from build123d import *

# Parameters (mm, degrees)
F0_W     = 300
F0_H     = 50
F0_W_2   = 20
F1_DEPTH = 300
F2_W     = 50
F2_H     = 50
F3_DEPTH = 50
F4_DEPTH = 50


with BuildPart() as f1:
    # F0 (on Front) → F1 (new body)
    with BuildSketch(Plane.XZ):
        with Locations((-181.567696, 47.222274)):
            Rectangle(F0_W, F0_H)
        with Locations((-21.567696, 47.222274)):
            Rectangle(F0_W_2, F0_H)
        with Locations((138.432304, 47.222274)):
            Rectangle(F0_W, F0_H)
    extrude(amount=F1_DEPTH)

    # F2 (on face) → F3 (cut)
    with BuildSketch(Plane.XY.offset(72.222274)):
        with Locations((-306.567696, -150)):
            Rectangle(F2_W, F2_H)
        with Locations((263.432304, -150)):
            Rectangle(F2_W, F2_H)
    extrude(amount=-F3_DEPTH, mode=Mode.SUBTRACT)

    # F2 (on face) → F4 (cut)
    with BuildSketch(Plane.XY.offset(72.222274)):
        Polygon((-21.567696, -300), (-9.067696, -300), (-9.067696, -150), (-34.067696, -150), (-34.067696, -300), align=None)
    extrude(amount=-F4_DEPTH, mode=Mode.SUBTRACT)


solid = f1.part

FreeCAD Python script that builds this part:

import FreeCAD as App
import Part
import Sketcher

V = App.Vector
Q = App.Units.Quantity


def add_polygon(sketch, points):
    """Adds a closed chain of lines whose ends are joined by coincident constraints."""
    first, n = sketch.GeometryCount, len(points)
    for a, b in zip(points, points[1:] + points[:1]):
        sketch.addGeometry(Part.LineSegment(App.Vector(*a, 0), App.Vector(*b, 0)), False)
    for i in range(n):
        sketch.addConstraint(Sketcher.Constraint("Coincident", first + i, 2, first + (i + 1) % n, 1))

doc = App.newDocument("Part")
body = doc.addObject("PartDesign::Body", "Body")

sketch1 = body.newObject("Sketcher::SketchObject", "Sketch")
sketch1.AttachmentSupport = (doc.getObject("XZ_Plane"), [""])
sketch1.MapMode = "FlatFace"
add_polygon(sketch1, [(-332, 72), (-332, 22), (288, 22), (288, 72)])
sketch1.addConstraint([
    Sketcher.Constraint("Vertical", 0),
    Sketcher.Constraint("Horizontal", 1),
    Sketcher.Constraint("Vertical", 2),
    Sketcher.Constraint("Horizontal", 3),
    Sketcher.Constraint("DistanceX", 1, 1, 1, 2, Q("620 mm")),
    Sketcher.Constraint("DistanceY", 0, 2, 0, 1, Q("50 mm")),
    Sketcher.Constraint("DistanceX", 0, 2, -1, 1, Q("331.567696 mm")),
    Sketcher.Constraint("DistanceY", -1, 1, 0, 2, Q("22.222274 mm")),
])
pad1 = body.newObject("PartDesign::Pad", "Pad")
pad1.Profile = sketch1
pad1.Length = 300

sketch2 = body.newObject("Sketcher::SketchObject", "Sketch001")
sketch2.AttachmentSupport = (doc.getObject("XY_Plane"), [""])
sketch2.MapMode = "FlatFace"
sketch2.AttachmentOffset = App.Placement(V(0, 0, 72.222274), App.Rotation())
add_polygon(sketch2, [(-332, -125), (-332, -175), (-282, -175), (-282, -125)])
add_polygon(sketch2, [(238, -125), (238, -175), (288, -175), (288, -125)])
sketch2.addConstraint([
    Sketcher.Constraint("Vertical", 0),
    Sketcher.Constraint("Horizontal", 1),
    Sketcher.Constraint("Vertical", 2),
    Sketcher.Constraint("Horizontal", 3),
    Sketcher.Constraint("Vertical", 4),
    Sketcher.Constraint("Horizontal", 5),
    Sketcher.Constraint("Vertical", 6),
    Sketcher.Constraint("Horizontal", 7),
    Sketcher.Constraint("Horizontal", 1, 2, 4, 2),
    Sketcher.Constraint("Horizontal", 3, 2, 6, 2),
    Sketcher.Constraint("Equal", 3, 5),
    Sketcher.Constraint("Equal", 7, 0),
    Sketcher.Constraint("DistanceX", 1, 1, 1, 2, Q("50 mm")),
    Sketcher.Constraint("DistanceY", 0, 2, -1, 1, Q("175 mm")),
    Sketcher.Constraint("DistanceX", 1, 2, 4, 2, Q("520 mm")),
    Sketcher.Constraint("DistanceX", 0, 2, -1, 1, Q("331.567696 mm")),
])
pocket1 = body.newObject("PartDesign::Pocket", "Pocket")
pocket1.Profile = sketch2
pocket1.Length = 50

sketch3 = body.newObject("Sketcher::SketchObject", "Sketch002")
sketch3.AttachmentSupport = (doc.getObject("XY_Plane"), [""])
sketch3.MapMode = "FlatFace"
sketch3.AttachmentOffset = App.Placement(V(0, 0, 72.222274), App.Rotation())
add_polygon(sketch3, [(-9, -300), (-9, -150), (-34, -150), (-34, -300)])
sketch3.addConstraint([
    Sketcher.Constraint("Vertical", 0),
    Sketcher.Constraint("Horizontal", 1),
    Sketcher.Constraint("Vertical", 2),
    Sketcher.Constraint("Horizontal", 3),
    Sketcher.Constraint("DistanceX", 1, 2, 1, 1, Q("25 mm")),
    Sketcher.Constraint("DistanceY", 0, 1, 0, 2, Q("150 mm")),
    Sketcher.Constraint("DistanceY", 0, 2, -1, 1, Q("150 mm")),
    Sketcher.Constraint("DistanceX", 0, 2, -1, 1, Q("9.067696 mm")),
])
pocket2 = body.newObject("PartDesign::Pocket", "Pocket001")
pocket2.Profile = sketch3
pocket2.Length = 50

doc.recompute()
